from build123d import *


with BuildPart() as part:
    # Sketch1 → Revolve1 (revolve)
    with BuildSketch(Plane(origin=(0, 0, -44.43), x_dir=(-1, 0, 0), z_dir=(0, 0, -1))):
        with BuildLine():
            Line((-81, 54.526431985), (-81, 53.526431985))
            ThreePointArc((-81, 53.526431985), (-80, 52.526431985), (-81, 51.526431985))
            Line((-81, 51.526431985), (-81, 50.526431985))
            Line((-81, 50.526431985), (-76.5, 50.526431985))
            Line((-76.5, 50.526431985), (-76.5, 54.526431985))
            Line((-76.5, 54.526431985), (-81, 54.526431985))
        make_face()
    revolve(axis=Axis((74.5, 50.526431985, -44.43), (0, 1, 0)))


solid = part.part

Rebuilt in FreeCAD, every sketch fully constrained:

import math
import FreeCAD as App
import Part
import Sketcher

V = App.Vector

doc = App.newDocument("Part")
body = doc.addObject("PartDesign::Body", "Body")

sketch1 = body.newObject("Sketcher::SketchObject", "Sketch")
sketch1.AttachmentSupport = (doc.getObject("XY_Plane"), [""])
sketch1.MapMode = "FlatFace"
sketch1.AttachmentOffset = App.Placement(V(0, 0, -44.43), App.Rotation())
sketch1.addGeometry(Part.LineSegment(V(81, 54.5, 0), V(81, 53.5, 0)), False)
sketch1.addGeometry(Part.ArcOfCircle(Part.Circle(V(81, 52.5, 0), V(0, 0, 1), 1), math.radians(90), math.radians(270)), False)
sketch1.addGeometry(Part.LineSegment(V(81, 51.5, 0), V(81, 50.5, 0)), False)
sketch1.addGeometry(Part.LineSegment(V(81, 50.5, 0), V(76.5, 50.5, 0)), False)
sketch1.addGeometry(Part.LineSegment(V(76.5, 50.5, 0), V(76.5, 54.5, 0)), False)
sketch1.addGeometry(Part.LineSegment(V(76.5, 54.5, 0), V(81, 54.5, 0)), False)
sketch1.addGeometry(Part.LineSegment(V(74.5, 50.5, 0), V(74.5, 54.5, 0)), True)
sketch1.addConstraint(Sketcher.Constraint("Coincident", 0, 2, 1, 1))
sketch1.addConstraint(Sketcher.Constraint("Coincident", 1, 2, 2, 1))
sketch1.addConstraint(Sketcher.Constraint("Coincident", 2, 2, 3, 1))
sketch1.addConstraint(Sketcher.Constraint("Coincident", 3, 2, 4, 1))
sketch1.addConstraint(Sketcher.Constraint("Coincident", 4, 2, 5, 1))
sketch1.addConstraint(Sketcher.Constraint("Coincident", 5, 2, 0, 1))
sketch1.addConstraint(Sketcher.Constraint("Vertical", 0))
sketch1.addConstraint(Sketcher.Constraint("Vertical", 2))
sketch1.addConstraint(Sketcher.Constraint("Horizontal", 3))
sketch1.addConstraint(Sketcher.Constraint("Vertical", 4))
sketch1.addConstraint(Sketcher.Constraint("Horizontal", 5))
sketch1.addConstraint(Sketcher.Constraint("Vertical", 6))
sketch1.addConstraint(Sketcher.Constraint("Horizontal", 3, 2, 6, 1))
sketch1.addConstraint(Sketcher.Constraint("Horizontal", 5, 2, 6, 2))
sketch1.addConstraint(Sketcher.Constraint("Vertical", 1, 3, 0, 2))
sketch1.addConstraint(Sketcher.Constraint("Vertical", 0, 2, 1, 2))
sketch1.addConstraint(Sketcher.Constraint("Equal", 0, 2))
sketch1.addConstraint(Sketcher.Constraint("Radius", 1, 1.0))
sketch1.addConstraint(Sketcher.Constraint("DistanceY", 0, 2, 0, 1, 1.0))
sketch1.addConstraint(Sketcher.Constraint("DistanceX", 3, 2, 3, 1, 4.5))
sketch1.addConstraint(Sketcher.Constraint("DistanceX", -1, 1, 1, 3, 81.0))
sketch1.addConstraint(Sketcher.Constraint("DistanceX", 6, 1, 3, 2, 2.0))
sketch1.addConstraint(Sketcher.Constraint("DistanceY", -1, 1, 1, 3, 52.526432))
revolution = body.newObject("PartDesign::Revolution", "Revolution")
revolution.Profile = sketch1
revolution.ReferenceAxis = (sketch1, ["Axis0"])
revolution.Angle = 360

doc.recompute()
